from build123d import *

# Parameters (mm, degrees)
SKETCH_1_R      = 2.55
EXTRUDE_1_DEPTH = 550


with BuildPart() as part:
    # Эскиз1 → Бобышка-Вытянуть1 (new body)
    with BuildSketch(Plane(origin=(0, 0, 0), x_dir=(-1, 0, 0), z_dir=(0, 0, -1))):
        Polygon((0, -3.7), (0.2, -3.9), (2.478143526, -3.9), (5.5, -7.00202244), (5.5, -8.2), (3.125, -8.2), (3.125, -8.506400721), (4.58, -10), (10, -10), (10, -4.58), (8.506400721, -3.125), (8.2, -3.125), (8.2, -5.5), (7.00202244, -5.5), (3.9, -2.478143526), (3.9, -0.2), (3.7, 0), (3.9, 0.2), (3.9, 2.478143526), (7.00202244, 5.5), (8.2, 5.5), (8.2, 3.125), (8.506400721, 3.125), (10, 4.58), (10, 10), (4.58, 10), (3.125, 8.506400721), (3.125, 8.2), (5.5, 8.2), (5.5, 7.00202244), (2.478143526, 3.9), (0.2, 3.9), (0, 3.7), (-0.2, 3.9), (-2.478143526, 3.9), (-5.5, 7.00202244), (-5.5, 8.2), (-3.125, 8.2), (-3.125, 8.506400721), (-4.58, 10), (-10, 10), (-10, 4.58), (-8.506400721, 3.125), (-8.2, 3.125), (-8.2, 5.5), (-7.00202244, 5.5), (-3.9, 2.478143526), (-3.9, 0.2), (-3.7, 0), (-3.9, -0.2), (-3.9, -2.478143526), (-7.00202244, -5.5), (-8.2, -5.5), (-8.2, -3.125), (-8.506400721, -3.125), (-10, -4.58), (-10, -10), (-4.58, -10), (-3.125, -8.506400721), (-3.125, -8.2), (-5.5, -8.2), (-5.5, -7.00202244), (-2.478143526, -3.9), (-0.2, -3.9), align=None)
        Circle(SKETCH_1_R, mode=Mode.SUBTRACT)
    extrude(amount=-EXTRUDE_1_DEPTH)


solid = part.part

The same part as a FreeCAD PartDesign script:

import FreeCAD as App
import Part
import Sketcher
from FreeCAD import Vector
Q = App.Units.Quantity

doc = App.newDocument("Part")
body = doc.addObject("PartDesign::Body", "Body")

sketch1 = body.newObject("Sketcher::SketchObject", "Sketch")
sketch1.AttachmentSupport = (doc.getObject("XY_Plane"), [""])
sketch1.MapMode = "FlatFace"
sketch1.addGeometry([
    Part.LineSegment(Vector(0, -3.7, 0), Vector(-0.2, -3.9, 0)),
    Part.LineSegment(Vector(-0.2, -3.9, 0), Vector(-2.478144, -3.9, 0)),
    Part.LineSegment(Vector(-2.478144, -3.9, 0), Vector(-5.5, -7.002022, 0)),
    Part.LineSegment(Vector(-5.5, -7.002022, 0), Vector(-5.5, -8.2, 0)),
    Part.LineSegment(Vector(-5.5, -8.2, 0), Vector(-3.125, -8.2, 0)),
    Part.LineSegment(Vector(-3.125, -8.2, 0), Vector(-3.125, -8.506401, 0)),
    Part.LineSegment(Vector(-3.125, -8.506401, 0), Vector(-4.58, -10, 0)),
    Part.LineSegment(Vector(-4.58, -10, 0), Vector(-10, -10, 0)),
    Part.LineSegment(Vector(-10, -10, 0), Vector(-10, -4.58, 0)),
    Part.LineSegment(Vector(-10, -4.58, 0), Vector(-8.506401, -3.125, 0)),
    Part.LineSegment(Vector(-8.506401, -3.125, 0), Vector(-8.2, -3.125, 0)),
    Part.LineSegment(Vector(-8.2, -3.125, 0), Vector(-8.2, -5.5, 0)),
    Part.LineSegment(Vector(-8.2, -5.5, 0), Vector(-7.002022, -5.5, 0)),
    Part.LineSegment(Vector(-7.002022, -5.5, 0), Vector(-3.9, -2.478144, 0)),
    Part.LineSegment(Vector(-3.9, -2.478144, 0), Vector(-3.9, -0.2, 0)),
    Part.LineSegment(Vector(-3.9, -0.2, 0), Vector(-3.7, 0, 0)),
    Part.LineSegment(Vector(-3.7, 0, 0), Vector(-3.9, 0.2, 0)),
    Part.LineSegment(Vector(-3.9, 0.2, 0), Vector(-3.9, 2.478144, 0)),
    Part.LineSegment(Vector(-3.9, 2.478144, 0), Vector(-7.002022, 5.5, 0)),
    Part.LineSegment(Vector(-7.002022, 5.5, 0), Vector(-8.2, 5.5, 0)),
    Part.LineSegment(Vector(-8.2, 5.5, 0), Vector(-8.2, 3.125, 0)),
    Part.LineSegment(Vector(-8.2, 3.125, 0), Vector(-8.506401, 3.125, 0)),
    Part.LineSegment(Vector(-8.506401, 3.125, 0), Vector(-10, 4.58, 0)),
    Part.LineSegment(Vector(-10, 4.58, 0), Vector(-10, 10, 0)),
    Part.LineSegment(Vector(-10, 10, 0), Vector(-4.58, 10, 0)),
    Part.LineSegment(Vector(-4.58, 10, 0), Vector(-3.125, 8.506401, 0)),
    Part.LineSegment(Vector(-3.125, 8.506401, 0), Vector(-3.125, 8.2, 0)),
    Part.LineSegment(Vector(-3.125, 8.2, 0), Vector(-5.5, 8.2, 0)),
    Part.LineSegment(Vector(-5.5, 8.2, 0), Vector(-5.5, 7.002022, 0)),
    Part.LineSegment(Vector(-5.5, 7.002022, 0), Vector(-2.478144, 3.9, 0)),
    Part.LineSegment(Vector(-2.478144, 3.9, 0), Vector(-0.2, 3.9, 0)),
    Part.LineSegment(Vector(-0.2, 3.9, 0), Vector(0, 3.7, 0)),
    Part.LineSegment(Vector(0, 3.7, 0), Vector(0.2, 3.9, 0)),
    Part.LineSegment(Vector(0.2, 3.9, 0), Vector(2.478144, 3.9, 0)),
    Part.LineSegment(Vector(2.478144, 3.9, 0), Vector(5.5, 7.002022, 0)),
    Part.LineSegment(Vector(5.5, 7.002022, 0), Vector(5.5, 8.2, 0)),
    Part.LineSegment(Vector(5.5, 8.2, 0), Vector(3.125, 8.2, 0)),
    Part.LineSegment(Vector(3.125, 8.2, 0), Vector(3.125, 8.506401, 0)),
    Part.LineSegment(Vector(3.125, 8.506401, 0), Vector(4.58, 10, 0)),
    Part.LineSegment(Vector(4.58, 10, 0), Vector(10, 10, 0)),
    Part.LineSegment(Vector(10, 10, 0), Vector(10, 4.58, 0)),
    Part.LineSegment(Vector(10, 4.58, 0), Vector(8.506401, 3.125, 0)),
    Part.LineSegment(Vector(8.506401, 3.125, 0), Vector(8.2, 3.125, 0)),
    Part.LineSegment(Vector(8.2, 3.125, 0), Vector(8.2, 5.5, 0)),
    Part.LineSegment(Vector(8.2, 5.5, 0), Vector(7.002022, 5.5, 0)),
    Part.LineSegment(Vector(7.002022, 5.5, 0), Vector(3.9, 2.478144, 0)),
    Part.LineSegment(Vector(3.9, 2.478144, 0), Vector(3.9, 0.2, 0)),
    Part.LineSegment(Vector(3.9, 0.2, 0), Vector(3.7, 0, 0)),
    Part.LineSegment(Vector(3.7, 0, 0), Vector(3.9, -0.2, 0)),
    Part.LineSegment(Vector(3.9, -0.2, 0), Vector(3.9, -2.478144, 0)),
    Part.LineSegment(Vector(3.9, -2.478144, 0), Vector(7.002022, -5.5, 0)),
    Part.LineSegment(Vector(7.002022, -5.5, 0), Vector(8.2, -5.5, 0)),
    Part.LineSegment(Vector(8.2, -5.5, 0), Vector(8.2, -3.125, 0)),
    Part.LineSegment(Vector(8.2, -3.125, 0), Vector(8.506401, -3.125, 0)),
    Part.LineSegment(Vector(8.506401, -3.125, 0), Vector(10, -4.58, 0)),
    Part.LineSegment(Vector(10, -4.58, 0), Vector(10, -10, 0)),
    Part.LineSegment(Vector(10, -10, 0), Vector(4.58, -10, 0)),
    Part.LineSegment(Vector(4.58, -10, 0), Vector(3.125, -8.506401, 0)),
    Part.LineSegment(Vector(3.125, -8.506401, 0), Vector(3.125, -8.2, 0)),
    Part.LineSegment(Vector(3.125, -8.2, 0), Vector(5.5, -8.2, 0)),
    Part.LineSegment(Vector(5.5, -8.2, 0), Vector(5.5, -7.002022, 0)),
    Part.LineSegment(Vector(5.5, -7.002022, 0), Vector(2.478144, -3.9, 0)),
    Part.LineSegment(Vector(2.478144, -3.9, 0), Vector(0.2, -3.9, 0)),
    Part.LineSegment(Vector(0.2, -3.9, 0), Vector(0, -3.7, 0)),
    Part.Circle(Vector(0, 0, 0), Vector(0, 0, 1), 2.55),
], False)
sketch1.addConstraint([
    Sketcher.Constraint("Coincident", 0, 2, 1, 1),
    Sketcher.Constraint("Coincident", 1, 2, 2, 1),
    Sketcher.Constraint("Coincident", 2, 2, 3, 1),
    Sketcher.Constraint("Coincident", 3, 2, 4, 1),
    Sketcher.Constraint("Coincident", 4, 2, 5, 1),
    Sketcher.Constraint("Coincident", 5, 2, 6, 1),
    Sketcher.Constraint("Coincident", 6, 2, 7, 1),
    Sketcher.Constraint("Coincident", 7, 2, 8, 1),
    Sketcher.Constraint("Coincident", 8, 2, 9, 1),
    Sketcher.Constraint("Coincident", 9, 2, 10, 1),
    Sketcher.Constraint("Coincident", 10, 2, 11, 1),
    Sketcher.Constraint("Coincident", 11, 2, 12, 1),
    Sketcher.Constraint("Coincident", 12, 2, 13, 1),
    Sketcher.Constraint("Coincident", 13, 2, 14, 1),
    Sketcher.Constraint("Coincident", 14, 2, 15, 1),
    Sketcher.Constraint("Coincident", 15, 2, 16, 1),
    Sketcher.Constraint("Coincident", 16, 2, 17, 1),
    Sketcher.Constraint("Coincident", 17, 2, 18, 1),
    Sketcher.Constraint("Coincident", 18, 2, 19, 1),
    Sketcher.Constraint("Coincident", 19, 2, 20, 1),
    Sketcher.Constraint("Coincident", 20, 2, 21, 1),
    Sketcher.Constraint("Coincident", 21, 2, 22, 1),
    Sketcher.Constraint("Coincident", 22, 2, 23, 1),
    Sketcher.Constraint("Coincident", 23, 2, 24, 1),
    Sketcher.Constraint("Coincident", 24, 2, 25, 1),
    Sketcher.Constraint("Coincident", 25, 2, 26, 1),
    Sketcher.Constraint("Coincident", 26, 2, 27, 1),
    Sketcher.Constraint("Coincident", 27, 2, 28, 1),
    Sketcher.Constraint("Coincident", 28, 2, 29, 1),
    Sketcher.Constraint("Coincident", 29, 2, 30, 1),
    Sketcher.Constraint("Coincident", 30, 2, 31, 1),
    Sketcher.Constraint("Coincident", 31, 2, 32, 1),
    Sketcher.Constraint("Coincident", 32, 2, 33, 1),
    Sketcher.Constraint("Coincident", 33, 2, 34, 1),
    Sketcher.Constraint("Coincident", 34, 2, 35, 1),
    Sketcher.Constraint("Coincident", 35, 2, 36, 1),
    Sketcher.Constraint("Coincident", 36, 2, 37, 1),
    Sketcher.Constraint("Coincident", 37, 2, 38, 1),
    Sketcher.Constraint("Coincident", 38, 2, 39, 1),
    Sketcher.Constraint("Coincident", 39, 2, 40, 1),
    Sketcher.Constraint("Coincident", 40, 2, 41, 1),
    Sketcher.Constraint("Coincident", 41, 2, 42, 1),
    Sketcher.Constraint("Coincident", 42, 2, 43, 1),
    Sketcher.Constraint("Coincident", 43, 2, 44, 1),
    Sketcher.Constraint("Coincident", 44, 2, 45, 1),
    Sketcher.Constraint("Coincident", 45, 2, 46, 1),
    Sketcher.Constraint("Coincident", 46, 2, 47, 1),
    Sketcher.Constraint("Coincident", 47, 2, 48, 1),
    Sketcher.Constraint("Coincident", 48, 2, 49, 1),
    Sketcher.Constraint("Coincident", 49, 2, 50, 1),
    Sketcher.Constraint("Coincident", 50, 2, 51, 1),
    Sketcher.Constraint("Coincident", 51, 2, 52, 1),
    Sketcher.Constraint("Coincident", 52, 2, 53, 1),
    Sketcher.Constraint("Coincident", 53, 2, 54, 1),
    Sketcher.Constraint("Coincident", 54, 2, 55, 1),
    Sketcher.Constraint("Coincident", 55, 2, 56, 1),
    Sketcher.Constraint("Coincident", 56, 2, 57, 1),
    Sketcher.Constraint("Coincident", 57, 2, 58, 1),
    Sketcher.Constraint("Coincident", 58, 2, 59, 1),
    Sketcher.Constraint("Coincident", 59, 2, 60, 1),
    Sketcher.Constraint("Coincident", 60, 2, 61, 1),
    Sketcher.Constraint("Coincident", 61, 2, 62, 1),
    Sketcher.Constraint("Coincident", 62, 2, 63, 1),
    Sketcher.Constraint("Coincident", 63, 2, 0, 1),
    Sketcher.Constraint("Horizontal", 1),
    Sketcher.Constraint("Vertical", 3),
    Sketcher.Constraint("Horizontal", 4),
    Sketcher.Constraint("Vertical", 5),
    Sketcher.Constraint("Horizontal", 7),
    Sketcher.Constraint("Vertical", 8),
    Sketcher.Constraint("Horizontal", 10),
    Sketcher.Constraint("Vertical", 11),
    Sketcher.Constraint("Horizontal", 12),
    Sketcher.Constraint("Vertical", 14),
    Sketcher.Constraint("Vertical", 17),
    Sketcher.Constraint("Horizontal", 19),
    Sketcher.Constraint("Vertical", 20),
    Sketcher.Constraint("Horizontal", 21),
    Sketcher.Constraint("Vertical", 23),
    Sketcher.Constraint("Horizontal", 24),
    Sketcher.Constraint("Vertical", 26),
    Sketcher.Constraint("Horizontal", 27),
    Sketcher.Constraint("Vertical", 28),
    Sketcher.Constraint("Horizontal", 30),
    Sketcher.Constraint("Horizontal", 33),
    Sketcher.Constraint("Vertical", 35),
    Sketcher.Constraint("Horizontal", 36),
    Sketcher.Constraint("Vertical", 37),
    Sketcher.Constraint("Horizontal", 39),
    Sketcher.Constraint("Vertical", 40),
    Sketcher.Constraint("Horizontal", 42),
    Sketcher.Constraint("Vertical", 43),
    Sketcher.Constraint("Horizontal", 44),
    Sketcher.Constraint("Vertical", 46),
    Sketcher.Constraint("Vertical", 49),
    Sketcher.Constraint("Horizontal", 51),
    Sketcher.Constraint("Vertical", 52),
    Sketcher.Constraint("Horizontal", 53),
    Sketcher.Constraint("Vertical", 55),
    Sketcher.Constraint("Horizontal", 56),
    Sketcher.Constraint("Vertical", 58),
    Sketcher.Constraint("Horizontal", 59),
    Sketcher.Constraint("Vertical", 60),
    Sketcher.Constraint("Horizontal", 62),
    Sketcher.Constraint("Coincident", 64, 3, -1, 1),
    Sketcher.Constraint("Symmetric", 0, 2, 32, 2, -1, 1),
    Sketcher.Constraint("Symmetric", 2, 2, 34, 2, -1, 1),
    Sketcher.Constraint("Symmetric", 4, 2, 36, 2, -1, 1),
    Sketcher.Constraint("Symmetric", 6, 2, 38, 2, -1, 1),
    Sketcher.Constraint("Symmetric", 8, 2, 40, 2, -1, 1),
    Sketcher.Constraint("Symmetric", 9, 2, 41, 2, -1, 1),
    Sketcher.Constraint("Symmetric", 11, 2, 43, 2, -1, 1),
    Sketcher.Constraint("Symmetric", 13, 2, 45, 2, -1, 1),
    Sketcher.Constraint("Symmetric", 15, 2, 47, 2, -1, 1),
    Sketcher.Constraint("Symmetric", 16, 2, 48, 2, -1, 1),
    Sketcher.Constraint("Symmetric", 18, 2, 50, 2, -1, 1),
    Sketcher.Constraint("Symmetric", 20, 2, 52, 2, -1, 1),
    Sketcher.Constraint("Symmetric", 22, 2, 54, 2, -1, 1),
    Sketcher.Constraint("Symmetric", 24, 2, 56, 2, -1, 1),
    Sketcher.Constraint("Symmetric", 25, 2, 57, 2, -1, 1),
    Sketcher.Constraint("Symmetric", 27, 2, 59, 2, -1, 1),
    Sketcher.Constraint("Symmetric", 29, 2, 61, 2, -1, 1),
    Sketcher.Constraint("Symmetric", 31, 2, 63, 2, -1, 1),
    Sketcher.Constraint("Symmetric", 30, 2, 32, 2, -2),
    Sketcher.Constraint("Symmetric", 28, 2, 34, 2, -2),
    Sketcher.Constraint("Symmetric", 26, 2, 36, 2, -2),
    Sketcher.Constraint("Symmetric", 24, 2, 38, 2, -2),
    Sketcher.Constraint("Symmetric", 22, 2, 40, 2, -2),
    Sketcher.Constraint("Symmetric", 21, 2, 41, 2, -2),
    Sketcher.Constraint("Symmetric", 19, 2, 43, 2, -2),
    Sketcher.Constraint("Symmetric", 17, 2, 45, 2, -2),
    Sketcher.Constraint("PointOnObject", 15, 2, -1),
    Sketcher.Constraint("PointOnObject", 31, 2, -2),
    Sketcher.Constraint("Parallel", 2, 6),
    Sketcher.Constraint("Parallel", 9, 13),
    Sketcher.Constraint("Parallel", 0, 15),
    Sketcher.Constraint("Perpendicular", 15, 16),
    Sketcher.Constraint("Perpendicular", 6, 18),
    Sketcher.Constraint("Parallel", 18, 22),
    Sketcher.Constraint("Perpendicular", 13, 25),
    Sketcher.Constraint("Parallel", 25, 29),
    Sketcher.Constraint("Parallel", 16, 31),
    Sketcher.Constraint("Perpendicular", 22, 34),
    Sketcher.Constraint("Parallel", 34, 38),
    Sketcher.Constraint("Parallel", 41, 45),
    Sketcher.Constraint("Parallel", 32, 47),
    Sketcher.Constraint("Perpendicular", 38, 50),
    Sketcher.Constraint("Parallel", 50, 54),
    Sketcher.Constraint("Parallel", 57, 61),
    Sketcher.Constraint("Parallel", 48, 63),
    Sketcher.Constraint("Equal", 51, 3),
    Sketcher.Constraint("Equal", 53, 5),
    Sketcher.Constraint("Equal", 56, 8),
    Sketcher.Constraint("Equal", 59, 11),
    Sketcher.Constraint("Equal", 62, 14),
    Sketcher.Constraint("Equal", 6, 9),
    Sketcher.Constraint("Equal", 2, 13),
    Sketcher.Constraint("Equal", 0, 15),
    Sketcher.Constraint("Diameter", 64, Q("5.1 mm")),
    Sketcher.Constraint("DistanceY", 6, 2, -1, 1, Q("10 mm")),
    Sketcher.Constraint("DistanceX", 7, 2, 7, 1, Q("5.42 mm")),
    Sketcher.Constraint("DistanceX", 0, 2, -1, 1, Q("0.2 mm")),
    Sketcher.Constraint("DistanceY", 0, 2, -1, 1, Q("3.9 mm")),
    Sketcher.Constraint("DistanceX", 2, 2, -1, 1, Q("5.5 mm")),
    Sketcher.Constraint("DistanceY", 3, 2, -1, 1, Q("8.2 mm")),
    Sketcher.Constraint("Angle", 2, Q("-134.25 deg")),
    Sketcher.Constraint("DistanceX", 4, 1, 4, 2, Q("2.375 mm")),
    Sketcher.Constraint("DistanceX", 1, 2, 1, 1, Q("2.278144 mm")),
])
pad1 = body.newObject("PartDesign::Pad", "Pad")
pad1.Profile = sketch1
pad1.Length = 550

doc.recompute()
